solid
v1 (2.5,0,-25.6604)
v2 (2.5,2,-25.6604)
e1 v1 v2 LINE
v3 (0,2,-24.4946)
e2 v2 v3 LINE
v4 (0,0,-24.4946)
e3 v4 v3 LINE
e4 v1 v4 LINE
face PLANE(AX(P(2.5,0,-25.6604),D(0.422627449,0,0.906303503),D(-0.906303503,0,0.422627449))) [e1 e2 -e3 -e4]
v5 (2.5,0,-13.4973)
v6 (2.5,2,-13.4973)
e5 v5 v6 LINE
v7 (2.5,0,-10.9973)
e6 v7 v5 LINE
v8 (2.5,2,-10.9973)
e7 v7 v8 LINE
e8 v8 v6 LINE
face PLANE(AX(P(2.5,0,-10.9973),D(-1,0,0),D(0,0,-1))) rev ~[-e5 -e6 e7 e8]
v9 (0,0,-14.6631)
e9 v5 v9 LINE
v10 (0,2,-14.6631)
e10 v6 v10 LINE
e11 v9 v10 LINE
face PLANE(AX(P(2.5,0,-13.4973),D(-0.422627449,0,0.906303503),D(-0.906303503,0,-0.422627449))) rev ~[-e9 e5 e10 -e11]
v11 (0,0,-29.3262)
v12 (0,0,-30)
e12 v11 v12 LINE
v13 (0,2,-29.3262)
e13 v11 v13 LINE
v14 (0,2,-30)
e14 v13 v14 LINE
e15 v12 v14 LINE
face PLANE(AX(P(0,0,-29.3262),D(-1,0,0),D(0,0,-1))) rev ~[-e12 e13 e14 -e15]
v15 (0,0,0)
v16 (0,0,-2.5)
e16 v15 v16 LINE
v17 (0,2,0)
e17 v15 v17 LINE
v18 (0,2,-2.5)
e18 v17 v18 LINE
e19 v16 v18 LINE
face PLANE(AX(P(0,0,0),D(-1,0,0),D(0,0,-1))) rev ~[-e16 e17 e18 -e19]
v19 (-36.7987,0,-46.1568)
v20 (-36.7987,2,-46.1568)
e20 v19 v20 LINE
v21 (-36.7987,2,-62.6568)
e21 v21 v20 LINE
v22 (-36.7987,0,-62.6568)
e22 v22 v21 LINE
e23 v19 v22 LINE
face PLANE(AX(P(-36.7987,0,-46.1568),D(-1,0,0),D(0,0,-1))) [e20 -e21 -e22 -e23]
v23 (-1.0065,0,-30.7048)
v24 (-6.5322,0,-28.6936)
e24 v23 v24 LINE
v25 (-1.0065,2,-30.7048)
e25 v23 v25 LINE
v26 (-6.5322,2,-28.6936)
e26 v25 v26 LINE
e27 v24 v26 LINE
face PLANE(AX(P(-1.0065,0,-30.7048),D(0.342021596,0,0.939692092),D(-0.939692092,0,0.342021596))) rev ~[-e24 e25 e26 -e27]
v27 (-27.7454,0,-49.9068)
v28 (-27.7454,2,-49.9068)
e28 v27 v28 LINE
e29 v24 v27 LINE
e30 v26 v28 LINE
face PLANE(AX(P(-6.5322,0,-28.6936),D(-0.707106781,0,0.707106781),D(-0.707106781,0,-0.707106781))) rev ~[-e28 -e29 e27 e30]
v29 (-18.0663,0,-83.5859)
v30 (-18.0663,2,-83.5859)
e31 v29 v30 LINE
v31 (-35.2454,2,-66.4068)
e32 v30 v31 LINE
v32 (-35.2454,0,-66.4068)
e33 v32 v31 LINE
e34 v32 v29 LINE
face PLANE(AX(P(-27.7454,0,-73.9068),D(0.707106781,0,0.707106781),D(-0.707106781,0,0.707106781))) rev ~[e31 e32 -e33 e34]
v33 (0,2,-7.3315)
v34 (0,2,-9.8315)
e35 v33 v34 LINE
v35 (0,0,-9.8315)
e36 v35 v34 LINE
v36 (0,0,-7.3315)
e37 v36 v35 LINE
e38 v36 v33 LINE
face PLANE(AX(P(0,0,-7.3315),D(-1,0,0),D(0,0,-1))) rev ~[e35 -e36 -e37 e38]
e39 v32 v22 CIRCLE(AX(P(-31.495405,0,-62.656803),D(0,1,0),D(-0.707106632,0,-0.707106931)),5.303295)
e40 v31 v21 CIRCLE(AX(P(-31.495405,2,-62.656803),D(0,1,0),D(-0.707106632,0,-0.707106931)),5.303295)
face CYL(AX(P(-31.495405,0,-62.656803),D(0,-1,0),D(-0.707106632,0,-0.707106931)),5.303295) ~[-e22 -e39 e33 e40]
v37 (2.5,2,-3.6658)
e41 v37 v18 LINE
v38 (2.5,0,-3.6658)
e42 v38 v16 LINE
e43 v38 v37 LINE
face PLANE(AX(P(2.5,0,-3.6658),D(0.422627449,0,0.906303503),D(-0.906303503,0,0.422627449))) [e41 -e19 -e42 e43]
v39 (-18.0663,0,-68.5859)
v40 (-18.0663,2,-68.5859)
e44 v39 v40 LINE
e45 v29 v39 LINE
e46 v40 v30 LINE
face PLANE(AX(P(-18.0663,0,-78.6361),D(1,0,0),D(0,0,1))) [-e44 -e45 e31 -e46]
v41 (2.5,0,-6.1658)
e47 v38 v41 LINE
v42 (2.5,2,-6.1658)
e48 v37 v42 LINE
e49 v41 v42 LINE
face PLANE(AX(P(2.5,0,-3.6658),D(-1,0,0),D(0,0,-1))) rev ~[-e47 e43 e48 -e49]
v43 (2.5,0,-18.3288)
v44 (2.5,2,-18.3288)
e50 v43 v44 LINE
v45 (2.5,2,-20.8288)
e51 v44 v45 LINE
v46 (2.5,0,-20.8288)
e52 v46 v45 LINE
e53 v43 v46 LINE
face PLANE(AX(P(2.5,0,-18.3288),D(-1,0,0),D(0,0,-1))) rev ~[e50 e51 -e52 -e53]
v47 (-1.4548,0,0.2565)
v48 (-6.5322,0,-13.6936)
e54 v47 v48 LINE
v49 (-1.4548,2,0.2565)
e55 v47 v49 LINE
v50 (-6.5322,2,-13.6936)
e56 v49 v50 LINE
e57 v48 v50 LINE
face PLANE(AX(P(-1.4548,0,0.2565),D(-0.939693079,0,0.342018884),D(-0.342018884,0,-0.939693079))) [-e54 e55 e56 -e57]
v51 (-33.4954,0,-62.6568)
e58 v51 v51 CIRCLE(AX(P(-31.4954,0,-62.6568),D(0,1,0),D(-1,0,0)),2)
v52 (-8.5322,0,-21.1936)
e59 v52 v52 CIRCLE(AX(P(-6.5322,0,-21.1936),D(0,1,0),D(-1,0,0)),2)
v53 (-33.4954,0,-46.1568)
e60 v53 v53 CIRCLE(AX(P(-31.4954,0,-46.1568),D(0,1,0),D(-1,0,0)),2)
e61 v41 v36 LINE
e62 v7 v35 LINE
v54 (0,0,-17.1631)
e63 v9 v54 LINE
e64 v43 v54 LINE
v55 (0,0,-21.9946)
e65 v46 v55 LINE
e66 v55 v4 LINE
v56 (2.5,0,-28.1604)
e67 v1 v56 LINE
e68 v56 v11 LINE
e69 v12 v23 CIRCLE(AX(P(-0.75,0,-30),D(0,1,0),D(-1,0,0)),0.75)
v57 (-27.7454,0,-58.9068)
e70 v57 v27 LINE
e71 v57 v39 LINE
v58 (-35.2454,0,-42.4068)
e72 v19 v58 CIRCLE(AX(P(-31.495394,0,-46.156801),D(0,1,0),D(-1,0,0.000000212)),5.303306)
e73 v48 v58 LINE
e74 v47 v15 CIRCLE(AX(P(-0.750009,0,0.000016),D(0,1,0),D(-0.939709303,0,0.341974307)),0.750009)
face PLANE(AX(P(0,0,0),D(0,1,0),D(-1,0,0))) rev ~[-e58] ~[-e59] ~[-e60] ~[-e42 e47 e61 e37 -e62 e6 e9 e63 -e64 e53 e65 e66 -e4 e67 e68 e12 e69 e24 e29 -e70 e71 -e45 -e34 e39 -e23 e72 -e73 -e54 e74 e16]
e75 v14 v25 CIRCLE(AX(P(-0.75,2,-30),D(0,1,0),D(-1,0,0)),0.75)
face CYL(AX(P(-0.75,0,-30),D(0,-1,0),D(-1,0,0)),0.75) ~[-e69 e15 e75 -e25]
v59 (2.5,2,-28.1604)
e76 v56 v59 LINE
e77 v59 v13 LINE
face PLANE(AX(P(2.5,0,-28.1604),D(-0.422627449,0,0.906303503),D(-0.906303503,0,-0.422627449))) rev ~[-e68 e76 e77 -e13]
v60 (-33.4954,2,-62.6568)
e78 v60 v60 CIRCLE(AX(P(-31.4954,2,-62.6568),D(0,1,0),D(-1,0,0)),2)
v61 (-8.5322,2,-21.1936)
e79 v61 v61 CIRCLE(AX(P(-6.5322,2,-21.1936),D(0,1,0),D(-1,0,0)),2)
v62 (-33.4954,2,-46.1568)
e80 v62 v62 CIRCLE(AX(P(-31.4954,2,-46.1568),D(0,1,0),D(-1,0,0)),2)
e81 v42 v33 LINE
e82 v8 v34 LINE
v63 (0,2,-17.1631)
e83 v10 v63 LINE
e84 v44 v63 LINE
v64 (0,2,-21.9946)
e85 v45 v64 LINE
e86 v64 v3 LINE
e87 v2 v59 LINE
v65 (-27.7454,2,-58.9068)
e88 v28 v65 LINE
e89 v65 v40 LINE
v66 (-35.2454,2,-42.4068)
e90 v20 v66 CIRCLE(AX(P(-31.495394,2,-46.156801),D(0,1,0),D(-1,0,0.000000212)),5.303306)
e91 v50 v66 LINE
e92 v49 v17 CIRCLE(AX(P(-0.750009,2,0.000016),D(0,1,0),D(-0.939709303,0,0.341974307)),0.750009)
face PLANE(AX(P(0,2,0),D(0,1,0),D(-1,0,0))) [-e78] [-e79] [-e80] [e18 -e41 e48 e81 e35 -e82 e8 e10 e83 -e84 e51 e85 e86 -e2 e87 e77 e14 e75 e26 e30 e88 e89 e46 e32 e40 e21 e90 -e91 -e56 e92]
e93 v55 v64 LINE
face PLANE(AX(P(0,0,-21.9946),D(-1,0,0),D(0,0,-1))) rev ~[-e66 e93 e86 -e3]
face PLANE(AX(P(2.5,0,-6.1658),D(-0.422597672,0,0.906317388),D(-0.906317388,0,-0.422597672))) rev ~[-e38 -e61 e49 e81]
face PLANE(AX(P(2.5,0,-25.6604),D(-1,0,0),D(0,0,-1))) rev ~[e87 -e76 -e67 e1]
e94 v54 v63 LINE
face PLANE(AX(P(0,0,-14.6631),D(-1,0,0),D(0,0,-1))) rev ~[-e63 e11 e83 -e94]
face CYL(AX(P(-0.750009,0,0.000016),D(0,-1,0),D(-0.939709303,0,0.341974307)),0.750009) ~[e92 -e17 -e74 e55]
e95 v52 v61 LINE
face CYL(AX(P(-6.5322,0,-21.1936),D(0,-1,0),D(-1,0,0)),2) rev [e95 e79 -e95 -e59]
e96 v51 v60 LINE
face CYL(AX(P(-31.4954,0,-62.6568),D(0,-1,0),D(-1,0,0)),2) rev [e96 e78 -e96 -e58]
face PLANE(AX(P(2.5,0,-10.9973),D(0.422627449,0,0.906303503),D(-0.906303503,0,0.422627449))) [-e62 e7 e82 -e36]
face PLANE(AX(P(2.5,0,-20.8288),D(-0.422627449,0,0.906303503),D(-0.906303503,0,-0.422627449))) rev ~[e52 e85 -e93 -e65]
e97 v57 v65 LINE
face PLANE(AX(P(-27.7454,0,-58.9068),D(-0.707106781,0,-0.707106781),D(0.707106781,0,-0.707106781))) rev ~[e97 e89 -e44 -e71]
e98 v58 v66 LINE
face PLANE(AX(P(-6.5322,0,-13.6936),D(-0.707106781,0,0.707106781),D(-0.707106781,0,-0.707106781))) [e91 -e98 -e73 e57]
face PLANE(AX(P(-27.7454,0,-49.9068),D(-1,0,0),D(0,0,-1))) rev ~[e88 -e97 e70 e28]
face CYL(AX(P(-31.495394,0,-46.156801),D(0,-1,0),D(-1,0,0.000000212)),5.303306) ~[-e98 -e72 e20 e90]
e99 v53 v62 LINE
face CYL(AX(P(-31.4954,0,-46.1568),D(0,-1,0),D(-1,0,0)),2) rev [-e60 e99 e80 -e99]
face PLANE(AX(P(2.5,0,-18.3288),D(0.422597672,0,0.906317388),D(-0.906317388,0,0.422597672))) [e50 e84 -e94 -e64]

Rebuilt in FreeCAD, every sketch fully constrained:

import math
import FreeCAD as App
import Part
import Sketcher
from FreeCAD import Vector
Q = App.Units.Quantity

doc = App.newDocument("Part")
body = doc.addObject("PartDesign::Body", "Body")

# Sketch on XZ plane
sketch1 = doc.addObject("Sketcher::SketchObject", "Sketch")
body.addObject(sketch1)
sketch1.AttachmentSupport = (doc.XZ_Plane, [""])
sketch1.MapMode = "FlatFace"
sketch1.addGeometry(Part.ArcOfCircle(Part.Circle(Vector(-0.8, 0, 0), Vector(0, 0, 1), 0.8), math.radians(0), math.radians(160)), False)
sketch1.addGeometry(Part.LineSegment(Vector(0, 0, 0), Vector(0, -2.5, 0)), False)
sketch1.addGeometry(Part.LineSegment(Vector(0, -2.5, 0), Vector(2.5, -3.7, 0)), False)
sketch1.addGeometry(Part.LineSegment(Vector(2.5, -3.7, 0), Vector(2.5, -6.2, 0)), False)
sketch1.addGeometry(Part.LineSegment(Vector(2.5, -6.2, 0), Vector(0, -7.3, 0)), False)
sketch1.addGeometry(Part.LineSegment(Vector(0, -7.3, 0), Vector(0, -9.8, 0)), False)
sketch1.addGeometry(Part.LineSegment(Vector(0, -9.8, 0), Vector(2.5, -11, 0)), False)
sketch1.addGeometry(Part.LineSegment(Vector(2.5, -11, 0), Vector(2.5, -13.5, 0)), False)
sketch1.addGeometry(Part.LineSegment(Vector(2.5, -13.5, 0), Vector(0, -14.7, 0)), False)
sketch1.addGeometry(Part.LineSegment(Vector(0, -14.7, 0), Vector(0, -17.2, 0)), False)
sketch1.addGeometry(Part.LineSegment(Vector(0, -17.2, 0), Vector(2.5, -18.3, 0)), False)
sketch1.addGeometry(Part.LineSegment(Vector(2.5, -18.3, 0), Vector(2.5, -20.8, 0)), False)
sketch1.addGeometry(Part.LineSegment(Vector(2.5, -20.8, 0), Vector(0, -22, 0)), False)
sketch1.addGeometry(Part.LineSegment(Vector(0, -22, 0), Vector(0, -24.5, 0)), False)
sketch1.addGeometry(Part.LineSegment(Vector(0, -24.5, 0), Vector(2.5, -25.7, 0)), False)
sketch1.addGeometry(Part.LineSegment(Vector(2.5, -25.7, 0), Vector(2.5, -28.2, 0)), False)
sketch1.addGeometry(Part.LineSegment(Vector(2.5, -28.2, 0), Vector(0, -29.3, 0)), False)
sketch1.addGeometry(Part.LineSegment(Vector(0, -29.3, 0), Vector(0, -30, 0)), False)
sketch1.addGeometry(Part.ArcOfCircle(Part.Circle(Vector(-0.8, -30, 0), Vector(0, 0, 1), 0.8), math.radians(-110), math.radians(0)), False)
sketch1.addGeometry(Part.LineSegment(Vector(-1, -30.7, 0), Vector(-6.5, -28.7, 0)), False)
sketch1.addGeometry(Part.LineSegment(Vector(-6.5, -28.7, 0), Vector(-27.7, -49.9, 0)), False)
sketch1.addGeometry(Part.LineSegment(Vector(-27.7, -49.9, 0), Vector(-27.7, -58.9, 0)), False)
sketch1.addGeometry(Part.LineSegment(Vector(-27.7, -58.9, 0), Vector(-18.1, -68.6, 0)), False)
sketch1.addGeometry(Part.LineSegment(Vector(-18.1, -68.6, 0), Vector(-18.1, -83.6, 0)), False)
sketch1.addGeometry(Part.LineSegment(Vector(-18.1, -83.6, 0), Vector(-35.2, -66.4, 0)), False)
sketch1.addGeometry(Part.ArcOfCircle(Part.Circle(Vector(-31.5, -62.7, 0), Vector(0, 0, 1), 5.3), math.radians(180), math.radians(225)), False)
sketch1.addGeometry(Part.LineSegment(Vector(-36.8, -62.7, 0), Vector(-36.8, -46.2, 0)), False)
sketch1.addGeometry(Part.ArcOfCircle(Part.Circle(Vector(-31.5, -46.2, 0), Vector(0, 0, 1), 5.3), math.radians(135), math.radians(180)), False)
sketch1.addGeometry(Part.LineSegment(Vector(-35.2, -42.4, 0), Vector(-6.5, -13.7, 0)), False)
sketch1.addGeometry(Part.LineSegment(Vector(-6.5, -13.7, 0), Vector(-1.5, 0.3, 0)), False)
sketch1.addGeometry(Part.Circle(Vector(-6.5, -21.2, 0), Vector(0, 0, 1), 2), False)
sketch1.addGeometry(Part.Circle(Vector(-31.5, -46.2, 0), Vector(0, 0, 1), 2), False)
sketch1.addGeometry(Part.Circle(Vector(-31.5, -62.7, 0), Vector(0, 0, 1), 2), False)
sketch1.addConstraint(Sketcher.Constraint("Tangent", 0, 1, 1, 1))
sketch1.addConstraint(Sketcher.Constraint("Coincident", 1, 2, 2, 1))
sketch1.addConstraint(Sketcher.Constraint("Coincident", 2, 2, 3, 1))
sketch1.addConstraint(Sketcher.Constraint("Coincident", 3, 2, 4, 1))
sketch1.addConstraint(Sketcher.Constraint("Coincident", 4, 2, 5, 1))
sketch1.addConstraint(Sketcher.Constraint("Coincident", 5, 2, 6, 1))
sketch1.addConstraint(Sketcher.Constraint("Coincident", 6, 2, 7, 1))
sketch1.addConstraint(Sketcher.Constraint("Coincident", 7, 2, 8, 1))
sketch1.addConstraint(Sketcher.Constraint("Coincident", 8, 2, 9, 1))
sketch1.addConstraint(Sketcher.Constraint("Coincident", 9, 2, 10, 1))
sketch1.addConstraint(Sketcher.Constraint("Coincident", 10, 2, 11, 1))
sketch1.addConstraint(Sketcher.Constraint("Coincident", 11, 2, 12, 1))
sketch1.addConstraint(Sketcher.Constraint("Coincident", 12, 2, 13, 1))
sketch1.addConstraint(Sketcher.Constraint("Coincident", 13, 2, 14, 1))
sketch1.addConstraint(Sketcher.Constraint("Coincident", 14, 2, 15, 1))
sketch1.addConstraint(Sketcher.Constraint("Coincident", 15, 2, 16, 1))
sketch1.addConstraint(Sketcher.Constraint("Coincident", 16, 2, 17, 1))
sketch1.addConstraint(Sketcher.Constraint("Tangent", 17, 2, 18, 2))
sketch1.addConstraint(Sketcher.Constraint("Tangent", 18, 1, 19, 1))
sketch1.addConstraint(Sketcher.Constraint("Coincident", 19, 2, 20, 1))
sketch1.addConstraint(Sketcher.Constraint("Coincident", 20, 2, 21, 1))
sketch1.addConstraint(Sketcher.Constraint("Coincident", 21, 2, 22, 1))
sketch1.addConstraint(Sketcher.Constraint("Coincident", 22, 2, 23, 1))
sketch1.addConstraint(Sketcher.Constraint("Coincident", 23, 2, 24, 1))
sketch1.addConstraint(Sketcher.Constraint("Tangent", 24, 2, 25, 2))
sketch1.addConstraint(Sketcher.Constraint("Tangent", 25, 1, 26, 1))
sketch1.addConstraint(Sketcher.Constraint("Tangent", 26, 2, 27, 2))
sketch1.addConstraint(Sketcher.Constraint("Tangent", 27, 1, 28, 1))
sketch1.addConstraint(Sketcher.Constraint("Coincident", 28, 2, 29, 1))
sketch1.addConstraint(Sketcher.Constraint("Tangent", 29, 2, 0, 2))
sketch1.addConstraint(Sketcher.Constraint("Vertical", 1))
sketch1.addConstraint(Sketcher.Constraint("Vertical", 3))
sketch1.addConstraint(Sketcher.Constraint("Vertical", 5))
sketch1.addConstraint(Sketcher.Constraint("Vertical", 7))
sketch1.addConstraint(Sketcher.Constraint("Vertical", 9))
sketch1.addConstraint(Sketcher.Constraint("Vertical", 11))
sketch1.addConstraint(Sketcher.Constraint("Vertical", 13))
sketch1.addConstraint(Sketcher.Constraint("Vertical", 15))
sketch1.addConstraint(Sketcher.Constraint("Vertical", 17))
sketch1.addConstraint(Sketcher.Constraint("Vertical", 21))
sketch1.addConstraint(Sketcher.Constraint("Vertical", 23))
sketch1.addConstraint(Sketcher.Constraint("Vertical", 26))
sketch1.addConstraint(Sketcher.Constraint("Coincident", 0, 1, -1, 1))
sketch1.addConstraint(Sketcher.Constraint("Coincident", 31, 3, 27, 3))
sketch1.addConstraint(Sketcher.Constraint("Coincident", 32, 3, 25, 3))
sketch1.addConstraint(Sketcher.Constraint("Equal", 0, 18))
sketch1.addConstraint(Sketcher.Constraint("Equal", 25, 27))
sketch1.addConstraint(Sketcher.Constraint("Equal", 30, 31))
sketch1.addConstraint(Sketcher.Constraint("Equal", 31, 32))
sketch1.addConstraint(Sketcher.Constraint("PointOnObject", 4, 2, -2))
sketch1.addConstraint(Sketcher.Constraint("PointOnObject", 8, 2, -2))
sketch1.addConstraint(Sketcher.Constraint("PointOnObject", 12, 2, -2))
sketch1.addConstraint(Sketcher.Constraint("PointOnObject", 16, 2, -2))
sketch1.addConstraint(Sketcher.Constraint("Parallel", 2, 6))
sketch1.addConstraint(Sketcher.Constraint("Parallel", 4, 8))
sketch1.addConstraint(Sketcher.Constraint("Parallel", 6, 10))
sketch1.addConstraint(Sketcher.Constraint("Parallel", 8, 12))
sketch1.addConstraint(Sketcher.Constraint("Parallel", 10, 14))
sketch1.addConstraint(Sketcher.Constraint("Parallel", 12, 16))
sketch1.addConstraint(Sketcher.Constraint("Perpendicular", 20, 22))
sketch1.addConstraint(Sketcher.Constraint("Parallel", 22, 24))
sketch1.addConstraint(Sketcher.Constraint("Perpendicular", 24, 28))
sketch1.addConstraint(Sketcher.Constraint("Perpendicular", 19, 29))
sketch1.addConstraint(Sketcher.Constraint("Vertical", 3, 2, 6, 2))
sketch1.addConstraint(Sketcher.Constraint("Vertical", 7, 2, 10, 2))
sketch1.addConstraint(Sketcher.Constraint("Vertical", 11, 2, 14, 2))
sketch1.addConstraint(Sketcher.Constraint("Vertical", 30, 3, 19, 2))
sketch1.addConstraint(Sketcher.Constraint("Vertical", 24, 2, 27, 1))
sketch1.addConstraint(Sketcher.Constraint("Vertical", 19, 2, 28, 2))
sketch1.addConstraint(Sketcher.Constraint("Equal", 1, 3))
sketch1.addConstraint(Sketcher.Constraint("Equal", 3, 5))
sketch1.addConstraint(Sketcher.Constraint("Equal", 5, 7))
sketch1.addConstraint(Sketcher.Constraint("Equal", 7, 9))
sketch1.addConstraint(Sketcher.Constraint("Equal", 9, 11))
sketch1.addConstraint(Sketcher.Constraint("Equal", 11, 13))
sketch1.addConstraint(Sketcher.Constraint("Equal", 13, 15))
sketch1.addConstraint(Sketcher.Constraint("Equal", 2, 4))
sketch1.addConstraint(Sketcher.Constraint("Diameter", 30, Q("4 mm")))
sketch1.addConstraint(Sketcher.Constraint("DistanceY", 21, 2, 21, 1, Q("9 mm")))
sketch1.addConstraint(Sketcher.Constraint("DistanceY", 23, 2, 23, 1, Q("15 mm")))
sketch1.addConstraint(Sketcher.Constraint("Angle", 2, Q("-25.0006 deg")))
sketch1.addConstraint(Sketcher.Constraint("Angle", 29, Q("70 deg")))
sketch1.addConstraint(Sketcher.Constraint("Radius", 0, Q("0.75 mm")))
sketch1.addConstraint(Sketcher.Constraint("Distance", 20, Q("30 mm")))
sketch1.addConstraint(Sketcher.Constraint("DistanceY", 1, 2, 1, 1, Q("2.5 mm")))
sketch1.addConstraint(Sketcher.Constraint("DistanceY", 18, 3, -1, 1, Q("30 mm")))
sketch1.addConstraint(Sketcher.Constraint("DistanceX", -1, 1, 2, 2, Q("2.5 mm")))
sketch1.addConstraint(Sketcher.Constraint("DistanceY", 19, 2, 30, 3, Q("7.5 mm")))
sketch1.addConstraint(Sketcher.Constraint("DistanceX", 24, 2, 21, 2, Q("7.5 mm")))
sketch1.addConstraint(Sketcher.Constraint("DistanceY", 20, 2, 27, 1, Q("7.5 mm")))
sketch1.addConstraint(Sketcher.Constraint("DistanceY", 26, 1, 26, 2, Q("16.5 mm")))
sketch1.addConstraint(Sketcher.Constraint("Distance", 24, Q("24.295 mm")))
pad1 = doc.addObject("PartDesign::Pad", "Pad")
body.addObject(pad1)
pad1.Profile = sketch1
pad1.Length = 2
pad1.Reversed = True

doc.recompute()
